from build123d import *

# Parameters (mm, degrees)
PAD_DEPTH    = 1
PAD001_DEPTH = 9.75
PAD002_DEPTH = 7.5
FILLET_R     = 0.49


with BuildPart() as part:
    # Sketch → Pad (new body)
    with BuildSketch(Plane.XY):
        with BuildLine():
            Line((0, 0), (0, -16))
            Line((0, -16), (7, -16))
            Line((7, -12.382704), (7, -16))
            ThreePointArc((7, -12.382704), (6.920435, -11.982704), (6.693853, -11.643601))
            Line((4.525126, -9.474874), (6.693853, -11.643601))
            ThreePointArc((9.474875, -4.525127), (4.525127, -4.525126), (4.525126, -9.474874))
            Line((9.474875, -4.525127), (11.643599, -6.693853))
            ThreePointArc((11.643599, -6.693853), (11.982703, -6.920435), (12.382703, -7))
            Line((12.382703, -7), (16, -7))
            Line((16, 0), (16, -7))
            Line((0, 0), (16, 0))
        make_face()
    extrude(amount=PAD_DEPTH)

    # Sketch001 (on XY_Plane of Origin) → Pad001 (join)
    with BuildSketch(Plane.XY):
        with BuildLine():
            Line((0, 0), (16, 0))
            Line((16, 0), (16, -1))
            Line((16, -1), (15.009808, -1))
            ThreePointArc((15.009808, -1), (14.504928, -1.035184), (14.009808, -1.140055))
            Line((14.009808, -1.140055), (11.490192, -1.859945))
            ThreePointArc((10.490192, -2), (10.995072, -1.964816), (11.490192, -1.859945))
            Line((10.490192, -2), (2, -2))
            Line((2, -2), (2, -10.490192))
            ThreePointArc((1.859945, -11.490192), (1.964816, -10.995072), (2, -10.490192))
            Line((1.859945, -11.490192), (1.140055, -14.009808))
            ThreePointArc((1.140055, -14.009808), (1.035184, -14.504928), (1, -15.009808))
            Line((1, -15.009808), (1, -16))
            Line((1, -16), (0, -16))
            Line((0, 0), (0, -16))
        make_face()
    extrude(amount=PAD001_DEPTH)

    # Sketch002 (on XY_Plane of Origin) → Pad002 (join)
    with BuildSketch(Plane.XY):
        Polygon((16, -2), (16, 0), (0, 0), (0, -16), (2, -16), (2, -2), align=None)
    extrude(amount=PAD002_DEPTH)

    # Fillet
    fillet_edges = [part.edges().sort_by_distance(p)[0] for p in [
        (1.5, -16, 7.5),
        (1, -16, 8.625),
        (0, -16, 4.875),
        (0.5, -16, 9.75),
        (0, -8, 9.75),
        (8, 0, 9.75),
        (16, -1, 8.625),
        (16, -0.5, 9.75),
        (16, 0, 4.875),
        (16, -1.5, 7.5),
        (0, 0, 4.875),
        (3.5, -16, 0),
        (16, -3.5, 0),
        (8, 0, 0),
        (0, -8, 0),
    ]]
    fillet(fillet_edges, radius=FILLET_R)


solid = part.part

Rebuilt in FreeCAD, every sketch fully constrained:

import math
import FreeCAD as App
import Part
import Sketcher

V = App.Vector
Q = App.Units.Quantity


def edges_at(feature, points):
    """Names of the edges that pass closest to the given points."""
    edges = feature.Shape.Edges
    near = lambda p: min(range(len(edges)), key=lambda i: edges[i].distToShape(Part.Vertex(*p))[0])
    return sorted({f"Edge{near(p) + 1}" for p in points})

doc = App.newDocument("Part")
params = doc.addObject("Spreadsheet::Sheet", "Params")
for row, (alias, value) in enumerate([
    ("sketch1_radius", "3.5 mm"),
    ("sketch1_width", "7 mm"),
    ("sketch1_width2", "16 mm"),
    ("pad1_length", "1 mm"),
    ("sketch2_width", "16 mm"),
    ("sketch2_width2", "1 mm"),
    ("sketch2_height", "16 mm"),
    ("sketch2_height2", "1 mm"),
    ("pad2_length", "9.75 mm"),
    ("sketch3_width", "16 mm"),
    ("sketch3_width2", "2 mm"),
    ("pad3_length", "7.5 mm"),
    ("fillet_radius", "0.49 mm"),
], start=1):
    params.set(f"A{row}", alias)
    params.set(f"B{row}", "=" + value)
    params.setAlias(f"B{row}", alias)

body = doc.addObject("PartDesign::Body", "Body")

# Sketch on XY plane
sketch1 = doc.addObject("Sketcher::SketchObject", "Sketch")
body.addObject(sketch1)
sketch1.AttachmentSupport = (doc.XY_Plane, [""])
sketch1.MapMode = "FlatFace"
sketch1.addGeometry([
    Part.LineSegment(V(0, 0, 0), V(0, -16, 0)),  # 0
    Part.LineSegment(V(0, -16, 0), V(7, -16, 0)),  # 1
    Part.LineSegment(V(7, -16, 0), V(7, -12.4, 0)),  # 2
    Part.ArcOfCircle(Part.Circle(V(6, -12.4, 0), V(0, 0, 1), 1), math.radians(0), math.radians(45)),  # 3
    Part.LineSegment(V(6.7, -11.6, 0), V(4.5, -9.5, 0)),  # 4
    Part.ArcOfCircle(Part.Circle(V(7, -7, 0), V(0, 0, 1), 3.5), math.radians(45), math.radians(225)),  # 5
    Part.LineSegment(V(9.5, -4.5, 0), V(11.6, -6.7, 0)),  # 6
    Part.ArcOfCircle(Part.Circle(V(12.4, -6, 0), V(0, 0, 1), 1), math.radians(-135), math.radians(-90)),  # 7
    Part.LineSegment(V(12.4, -7, 0), V(16, -7, 0)),  # 8
    Part.LineSegment(V(16, -7, 0), V(16, 0, 0)),  # 9
    Part.LineSegment(V(16, 0, 0), V(0, 0, 0)),  # 10
], False)
sketch1.addConstraint([
    Sketcher.Constraint("Coincident", 0, 2, 1, 1),
    Sketcher.Constraint("Coincident", 1, 2, 2, 1),
    Sketcher.Constraint("Tangent", 2, 2, 3, 1),
    Sketcher.Constraint("Tangent", 3, 2, 4, 1),
    Sketcher.Constraint("Tangent", 4, 2, 5, 2),
    Sketcher.Constraint("Tangent", 5, 1, 6, 1),
    Sketcher.Constraint("Tangent", 6, 2, 7, 1),
    Sketcher.Constraint("Tangent", 7, 2, 8, 1),
    Sketcher.Constraint("Coincident", 8, 2, 9, 1),
    Sketcher.Constraint("Coincident", 9, 2, 10, 1),
    Sketcher.Constraint("Coincident", 10, 2, 0, 1),
    Sketcher.Constraint("Vertical", 0),
    Sketcher.Constraint("Horizontal", 1),
    Sketcher.Constraint("Vertical", 2),
    Sketcher.Constraint("Horizontal", 8),
    Sketcher.Constraint("Vertical", 9),
    Sketcher.Constraint("Horizontal", 10),
    Sketcher.Constraint("Coincident", 10, 2, -1, 1),
    Sketcher.Constraint("Parallel", 4, 6),
    Sketcher.Constraint("Horizontal", 5, 3, 7, 2),
    Sketcher.Constraint("Vertical", 5, 3, 1, 2),
    Sketcher.Constraint("Equal", 10, 0),
    Sketcher.Constraint("Equal", 8, 2),
    Sketcher.Constraint("Equal", 1, 9),
    Sketcher.Constraint("Radius", 5, Q("3.5 mm")),
    Sketcher.Constraint("DistanceX", 1, 1, 1, 2, Q("7 mm")),
    Sketcher.Constraint("DistanceX", 10, 2, 10, 1, Q("16 mm")),
    Sketcher.Constraint("Angle", 4, Q("135 deg")),
    Sketcher.Constraint("Radius", 7, Q("1.045252 mm")),
])
sketch1.setExpression("Constraints[24]", "Params.sketch1_radius")
sketch1.setExpression("Constraints[25]", "Params.sketch1_width")
sketch1.setExpression("Constraints[26]", "Params.sketch1_width2")
pad1 = doc.addObject("PartDesign::Pad", "Pad")
body.addObject(pad1)
pad1.Profile = sketch1
pad1.setExpression("Length", "Params.pad1_length")

# Sketch on XY plane
sketch2 = doc.addObject("Sketcher::SketchObject", "Sketch001")
body.addObject(sketch2)
sketch2.AttachmentSupport = (doc.XY_Plane, [""])
sketch2.MapMode = "FlatFace"
sketch2.addGeometry([
    Part.LineSegment(V(16, 0, 0), V(0, 0, 0)),  # 0
    Part.LineSegment(V(0, 0, 0), V(0, -16, 0)),  # 1
    Part.LineSegment(V(0, -16, 0), V(1, -16, 0)),  # 2
    Part.LineSegment(V(1, -16, 0), V(1, -15.009808, 0)),  # 3
    Part.ArcOfCircle(Part.Circle(V(4.640076, -15.009811, 0), V(0, 0, 1), 3.640076), math.radians(164.054646), math.radians(179.999952)),  # 4
    Part.LineSegment(V(1.140055, -14.009808, 0), V(1.859945, -11.490192, 0)),  # 5
    Part.ArcOfCircle(Part.Circle(V(-1.640076, -10.490189, 0), V(0, 0, 1), 3.640076), math.radians(-15.945354), math.radians(-0.000048)),  # 6
    Part.LineSegment(V(2, -10.490192, 0), V(2, -2, 0)),  # 7
    Part.LineSegment(V(2, -2, 0), V(10.490192, -2, 0)),  # 8
    Part.ArcOfCircle(Part.Circle(V(10.490189, 1.640076, 0), V(0, 0, 1), 3.640076), math.radians(-89.999952), math.radians(-74.054646)),  # 9
    Part.LineSegment(V(11.490192, -1.859945, 0), V(14.009808, -1.140055, 0)),  # 10
    Part.ArcOfCircle(Part.Circle(V(15.009811, -4.640076, 0), V(0, 0, 1), 3.640076), math.radians(90.000048), math.radians(105.945354)),  # 11
    Part.LineSegment(V(15.009808, -1, 0), V(16, -1, 0)),  # 12
    Part.LineSegment(V(16, -1, 0), V(16, 0, 0)),  # 13
], False)
sketch2.addConstraint([
    Sketcher.Constraint("Coincident", 0, 2, 1, 1),
    Sketcher.Constraint("Coincident", 1, 2, 2, 1),
    Sketcher.Constraint("Coincident", 2, 2, 3, 1),
    Sketcher.Constraint("Coincident", 3, 2, 4, 2),
    Sketcher.Constraint("Coincident", 4, 1, 5, 1),
    Sketcher.Constraint("Coincident", 5, 2, 6, 1),
    Sketcher.Constraint("Coincident", 6, 2, 7, 1),
    Sketcher.Constraint("Coincident", 7, 2, 8, 1),
    Sketcher.Constraint("Coincident", 8, 2, 9, 1),
    Sketcher.Constraint("Coincident", 9, 2, 10, 1),
    Sketcher.Constraint("Coincident", 10, 2, 11, 2),
    Sketcher.Constraint("Coincident", 11, 1, 12, 1),
    Sketcher.Constraint("Coincident", 12, 2, 13, 1),
    Sketcher.Constraint("Coincident", 13, 2, 0, 1),
    Sketcher.Constraint("Horizontal", 0),
    Sketcher.Constraint("Vertical", 1),
    Sketcher.Constraint("Horizontal", 2),
    Sketcher.Constraint("Vertical", 3),
    Sketcher.Constraint("Vertical", 7),
    Sketcher.Constraint("Horizontal", 8),
    Sketcher.Constraint("Horizontal", 12),
    Sketcher.Constraint("Vertical", 13),
    Sketcher.Constraint("Coincident", 0, 2, -1, 1),
    Sketcher.Constraint("DistanceX", 0, 2, 0, 1, Q("16 mm")),
    Sketcher.Constraint("DistanceX", 2, 1, 2, 2, Q("1 mm")),
    Sketcher.Constraint("DistanceY", 1, 2, 1, 1, Q("16 mm")),
    Sketcher.Constraint("DistanceY", 13, 1, 13, 2, Q("1 mm")),
    Sketcher.Constraint("DistanceX", -1, 1, 6, 2, Q("2 mm")),
    Sketcher.Constraint("DistanceY", 7, 2, -1, 1, Q("2 mm")),
    Sketcher.Constraint("DistanceY", 3, 2, 4, 1, Q("1 mm")),
    Sketcher.Constraint("DistanceY", 5, 2, 6, 2, Q("1 mm")),
    Sketcher.Constraint("DistanceX", 8, 2, 9, 2, Q("1 mm")),
    Sketcher.Constraint("DistanceX", 10, 2, 11, 1, Q("1 mm")),
    Sketcher.Constraint("Radius", 4, Q("3.640076 mm")),
    Sketcher.Constraint("Radius", 6, Q("3.640076 mm")),
    Sketcher.Constraint("Radius", 9, Q("3.640076 mm")),
    Sketcher.Constraint("Radius", 11, Q("3.640076 mm")),
    Sketcher.Constraint("Distance", 5, Q("2.62044 mm")),
    Sketcher.Constraint("Distance", 10, Q("2.62044 mm")),
    Sketcher.Constraint("DistanceX", 8, 1, 8, 2, Q("8.490192 mm")),
    Sketcher.Constraint("DistanceX", 12, 1, 12, 2, Q("0.990192 mm")),
    Sketcher.Constraint("DistanceY", 3, 1, 3, 2, Q("0.990192 mm")),
    Sketcher.Constraint("DistanceY", 7, 1, 7, 2, Q("8.490192 mm")),
    Sketcher.Constraint("DistanceY", 4, 3, -1, 1, Q("15.009811 mm")),
    Sketcher.Constraint("DistanceX", -1, 1, 9, 3, Q("10.490189 mm")),
])
sketch2.setExpression("Constraints[23]", "Params.sketch2_width")
sketch2.setExpression("Constraints[24]", "Params.sketch2_width2")
sketch2.setExpression("Constraints[25]", "Params.sketch2_height")
sketch2.setExpression("Constraints[26]", "Params.sketch2_height2")
pad2 = doc.addObject("PartDesign::Pad", "Pad001")
body.addObject(pad2)
pad2.Profile = sketch2
pad2.setExpression("Length", "Params.pad2_length")

# Sketch on XY plane
sketch3 = doc.addObject("Sketcher::SketchObject", "Sketch002")
body.addObject(sketch3)
sketch3.AttachmentSupport = (doc.XY_Plane, [""])
sketch3.MapMode = "FlatFace"
sketch3.addGeometry([
    Part.LineSegment(V(16, -2, 0), V(16, 0, 0)),  # 0
    Part.LineSegment(V(16, 0, 0), V(0, 0, 0)),  # 1
    Part.LineSegment(V(0, 0, 0), V(0, -16, 0)),  # 2
    Part.LineSegment(V(0, -16, 0), V(2, -16, 0)),  # 3
    Part.LineSegment(V(2, -16, 0), V(2, -2, 0)),  # 4
    Part.LineSegment(V(2, -2, 0), V(16, -2, 0)),  # 5
], False)
sketch3.addConstraint([
    Sketcher.Constraint("Coincident", 0, 2, 1, 1),
    Sketcher.Constraint("Coincident", 1, 2, 2, 1),
    Sketcher.Constraint("Coincident", 2, 2, 3, 1),
    Sketcher.Constraint("Coincident", 3, 2, 4, 1),
    Sketcher.Constraint("Coincident", 4, 2, 5, 1),
    Sketcher.Constraint("Coincident", 5, 2, 0, 1),
    Sketcher.Constraint("Vertical", 0),
    Sketcher.Constraint("Horizontal", 1),
    Sketcher.Constraint("Vertical", 2),
    Sketcher.Constraint("Horizontal", 3),
    Sketcher.Constraint("Vertical", 4),
    Sketcher.Constraint("Horizontal", 5),
    Sketcher.Constraint("Coincident", 1, 2, -1, 1),
    Sketcher.Constraint("Equal", 3, 0),
    Sketcher.Constraint("Equal", 1, 2),
    Sketcher.Constraint("DistanceX", 1, 2, 1, 1, Q("16 mm")),
    Sketcher.Constraint("DistanceX", 3, 1, 3, 2, Q("2 mm")),
])
sketch3.setExpression("Constraints[15]", "Params.sketch3_width")
sketch3.setExpression("Constraints[16]", "Params.sketch3_width2")
pad3 = doc.addObject("PartDesign::Pad", "Pad002")
body.addObject(pad3)
pad3.Profile = sketch3
pad3.setExpression("Length", "Params.pad3_length")
doc.recompute()

fillet = doc.addObject("PartDesign::Fillet", "Fillet")
body.addObject(fillet)
fillet.Base = (pad3, edges_at(pad3, [
    (1.5, -16, 7.5),
    (1, -16, 8.625),
    (0, -16, 4.875),
    (0.5, -16, 9.75),
    (0, -8, 9.75),
    (8, 0, 9.75),
    (16, -1, 8.625),
    (16, -0.5, 9.75),
    (16, 0, 4.875),
    (16, -1.5, 7.5),
    (0, 0, 4.875),
    (3.5, -16, 0),
    (16, -3.5, 0),
    (8, 0, 0),
    (0, -8, 0),
]))
fillet.setExpression("Radius", "Params.fillet_radius")

doc.recompute()
